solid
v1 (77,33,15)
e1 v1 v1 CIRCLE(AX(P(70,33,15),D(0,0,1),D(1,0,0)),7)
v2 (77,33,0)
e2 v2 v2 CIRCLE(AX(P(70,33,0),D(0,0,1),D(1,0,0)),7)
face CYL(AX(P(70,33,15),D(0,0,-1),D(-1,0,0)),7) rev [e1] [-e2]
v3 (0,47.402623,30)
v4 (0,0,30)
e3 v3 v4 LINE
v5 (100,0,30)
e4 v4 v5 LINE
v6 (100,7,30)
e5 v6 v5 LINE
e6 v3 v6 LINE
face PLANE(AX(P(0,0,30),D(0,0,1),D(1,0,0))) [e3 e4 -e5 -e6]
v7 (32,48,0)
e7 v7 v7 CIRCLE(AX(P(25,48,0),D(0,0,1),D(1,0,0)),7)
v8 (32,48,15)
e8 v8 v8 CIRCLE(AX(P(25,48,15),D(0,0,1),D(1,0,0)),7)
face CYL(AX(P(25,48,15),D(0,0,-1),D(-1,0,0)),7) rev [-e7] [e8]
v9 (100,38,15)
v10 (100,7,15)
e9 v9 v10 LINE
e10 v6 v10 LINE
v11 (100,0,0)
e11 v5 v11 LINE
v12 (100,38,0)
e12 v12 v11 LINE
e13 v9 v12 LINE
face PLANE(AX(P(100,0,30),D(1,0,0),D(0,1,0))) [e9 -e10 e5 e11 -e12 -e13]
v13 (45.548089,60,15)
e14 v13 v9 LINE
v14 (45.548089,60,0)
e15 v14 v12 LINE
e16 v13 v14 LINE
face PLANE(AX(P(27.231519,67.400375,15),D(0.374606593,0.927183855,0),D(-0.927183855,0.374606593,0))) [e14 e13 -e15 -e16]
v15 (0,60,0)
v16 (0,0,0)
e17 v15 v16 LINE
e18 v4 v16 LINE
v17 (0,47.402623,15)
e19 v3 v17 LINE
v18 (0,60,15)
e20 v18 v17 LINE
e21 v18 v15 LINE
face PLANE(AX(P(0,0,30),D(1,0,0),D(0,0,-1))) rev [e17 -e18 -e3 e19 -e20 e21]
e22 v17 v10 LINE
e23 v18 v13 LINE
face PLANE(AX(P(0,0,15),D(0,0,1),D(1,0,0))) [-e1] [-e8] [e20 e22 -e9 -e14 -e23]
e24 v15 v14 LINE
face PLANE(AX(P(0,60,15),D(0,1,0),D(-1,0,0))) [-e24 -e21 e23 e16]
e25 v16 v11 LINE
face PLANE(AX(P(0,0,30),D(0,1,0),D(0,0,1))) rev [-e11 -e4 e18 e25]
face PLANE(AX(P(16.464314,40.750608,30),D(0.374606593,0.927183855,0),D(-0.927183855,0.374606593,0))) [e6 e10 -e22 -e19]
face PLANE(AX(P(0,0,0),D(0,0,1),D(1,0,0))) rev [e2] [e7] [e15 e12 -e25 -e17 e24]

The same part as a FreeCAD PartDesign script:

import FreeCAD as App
import Part
import Sketcher
Q = App.Units.Quantity

doc = App.newDocument("Part")
params = doc.addObject("Spreadsheet::Sheet", "Params")
for row, (alias, value) in enumerate([
    ("sketch1_width", "100 mm"),
    ("sketch1_height", "7 mm"),
    ("pad1_length", "30 mm"),
    ("sketch2_diameter", "14 mm"),
    ("sketch2_height", "31 mm"),
    ("pad2_length", "15 mm"),
], start=1):
    params.set(f"A{row}", alias)
    params.set(f"B{row}", "=" + value)
    params.setAlias(f"B{row}", alias)

body = doc.addObject("PartDesign::Body", "Body")

sketch1 = body.newObject("Sketcher::SketchObject", "Sketch")
sketch1.AttachmentSupport = (doc.getObject("XY_Plane"), [""])
sketch1.MapMode = "FlatFace"
sketch1.addGeometry(Part.LineSegment(App.Vector(100, 7, 0), App.Vector(0, 47, 0)), False)
sketch1.addGeometry(Part.LineSegment(App.Vector(0, 47, 0), App.Vector(0, 0, 0)), False)
sketch1.addGeometry(Part.LineSegment(App.Vector(0, 0, 0), App.Vector(100, 0, 0)), False)
sketch1.addGeometry(Part.LineSegment(App.Vector(100, 0, 0), App.Vector(100, 7, 0)), False)
sketch1.addConstraint(Sketcher.Constraint("Coincident", 0, 2, 1, 1))
sketch1.addConstraint(Sketcher.Constraint("Coincident", 1, 2, 2, 1))
sketch1.addConstraint(Sketcher.Constraint("Coincident", 2, 2, 3, 1))
sketch1.addConstraint(Sketcher.Constraint("Coincident", 3, 2, 0, 1))
sketch1.addConstraint(Sketcher.Constraint("Vertical", 1))
sketch1.addConstraint(Sketcher.Constraint("Horizontal", 2))
sketch1.addConstraint(Sketcher.Constraint("Vertical", 3))
sketch1.addConstraint(Sketcher.Constraint("Coincident", 1, 2, -1, 1))
sketch1.addConstraint(Sketcher.Constraint("DistanceX", 2, 1, 2, 2, Q("100 mm")))
sketch1.addConstraint(Sketcher.Constraint("DistanceY", 3, 1, 3, 2, Q("7 mm")))
sketch1.addConstraint(Sketcher.Constraint("Angle", 0, Q("158 deg")))
sketch1.setExpression("Constraints[8]", "Params.sketch1_width")
sketch1.setExpression("Constraints[9]", "Params.sketch1_height")
pad1 = body.newObject("PartDesign::Pad", "Pad")
pad1.Profile = sketch1
pad1.setExpression("Length", "Params.pad1_length")

sketch2 = body.newObject("Sketcher::SketchObject", "Sketch001")
sketch2.AttachmentSupport = (doc.getObject("XY_Plane"), [""])
sketch2.MapMode = "FlatFace"
sketch2.addGeometry(Part.LineSegment(App.Vector(46, 60, 0), App.Vector(0, 60, 0)), False)
sketch2.addGeometry(Part.LineSegment(App.Vector(0, 60, 0), App.Vector(0, 47, 0)), False)
sketch2.addGeometry(Part.LineSegment(App.Vector(0, 47, 0), App.Vector(100, 7, 0)), False)
sketch2.addGeometry(Part.LineSegment(App.Vector(100, 7, 0), App.Vector(100, 38, 0)), False)
sketch2.addGeometry(Part.LineSegment(App.Vector(100, 38, 0), App.Vector(46, 60, 0)), False)
sketch2.addGeometry(Part.Circle(App.Vector(70, 33, 0), App.Vector(0, 0, 1), 7), False)
sketch2.addGeometry(Part.Circle(App.Vector(25, 48, 0), App.Vector(0, 0, 1), 7), False)
sketch2.addConstraint(Sketcher.Constraint("Coincident", 0, 2, 1, 1))
sketch2.addConstraint(Sketcher.Constraint("Coincident", 1, 2, 2, 1))
sketch2.addConstraint(Sketcher.Constraint("Coincident", 2, 2, 3, 1))
sketch2.addConstraint(Sketcher.Constraint("Coincident", 3, 2, 4, 1))
sketch2.addConstraint(Sketcher.Constraint("Coincident", 4, 2, 0, 1))
sketch2.addConstraint(Sketcher.Constraint("Horizontal", 0))
sketch2.addConstraint(Sketcher.Constraint("Vertical", 1))
sketch2.addConstraint(Sketcher.Constraint("Vertical", 3))
sketch2.addConstraint(Sketcher.Constraint("Equal", 5, 6))
sketch2.addConstraint(Sketcher.Constraint("PointOnObject", 0, 2, -2))
sketch2.addConstraint(Sketcher.Constraint("Parallel", 2, 4))
sketch2.addConstraint(Sketcher.Constraint("Diameter", 5, Q("14 mm")))
sketch2.addConstraint(Sketcher.Constraint("DistanceY", 3, 1, 3, 2, Q("31 mm")))
sketch2.addConstraint(Sketcher.Constraint("Angle", 2, Q("-22 deg")))
sketch2.addConstraint(Sketcher.Constraint("DistanceX", -1, 1, 5, 3, Q("70 mm")))
sketch2.addConstraint(Sketcher.Constraint("DistanceY", -1, 1, 5, 3, Q("33 mm")))
sketch2.addConstraint(Sketcher.Constraint("DistanceX", -1, 1, 6, 3, Q("25 mm")))
sketch2.addConstraint(Sketcher.Constraint("DistanceY", -1, 1, 6, 3, Q("48 mm")))
sketch2.addConstraint(Sketcher.Constraint("DistanceY", -1, 1, 0, 2, Q("60 mm")))
sketch2.addConstraint(Sketcher.Constraint("DistanceX", -1, 1, 2, 2, Q("100 mm")))
sketch2.addConstraint(Sketcher.Constraint("DistanceY", -1, 1, 2, 2, Q("7 mm")))
sketch2.setExpression("Constraints[11]", "Params.sketch2_diameter")
sketch2.setExpression("Constraints[12]", "Params.sketch2_height")
pad2 = body.newObject("PartDesign::Pad", "Pad001")
pad2.Profile = sketch2
pad2.setExpression("Length", "Params.pad2_length")

doc.recompute()
